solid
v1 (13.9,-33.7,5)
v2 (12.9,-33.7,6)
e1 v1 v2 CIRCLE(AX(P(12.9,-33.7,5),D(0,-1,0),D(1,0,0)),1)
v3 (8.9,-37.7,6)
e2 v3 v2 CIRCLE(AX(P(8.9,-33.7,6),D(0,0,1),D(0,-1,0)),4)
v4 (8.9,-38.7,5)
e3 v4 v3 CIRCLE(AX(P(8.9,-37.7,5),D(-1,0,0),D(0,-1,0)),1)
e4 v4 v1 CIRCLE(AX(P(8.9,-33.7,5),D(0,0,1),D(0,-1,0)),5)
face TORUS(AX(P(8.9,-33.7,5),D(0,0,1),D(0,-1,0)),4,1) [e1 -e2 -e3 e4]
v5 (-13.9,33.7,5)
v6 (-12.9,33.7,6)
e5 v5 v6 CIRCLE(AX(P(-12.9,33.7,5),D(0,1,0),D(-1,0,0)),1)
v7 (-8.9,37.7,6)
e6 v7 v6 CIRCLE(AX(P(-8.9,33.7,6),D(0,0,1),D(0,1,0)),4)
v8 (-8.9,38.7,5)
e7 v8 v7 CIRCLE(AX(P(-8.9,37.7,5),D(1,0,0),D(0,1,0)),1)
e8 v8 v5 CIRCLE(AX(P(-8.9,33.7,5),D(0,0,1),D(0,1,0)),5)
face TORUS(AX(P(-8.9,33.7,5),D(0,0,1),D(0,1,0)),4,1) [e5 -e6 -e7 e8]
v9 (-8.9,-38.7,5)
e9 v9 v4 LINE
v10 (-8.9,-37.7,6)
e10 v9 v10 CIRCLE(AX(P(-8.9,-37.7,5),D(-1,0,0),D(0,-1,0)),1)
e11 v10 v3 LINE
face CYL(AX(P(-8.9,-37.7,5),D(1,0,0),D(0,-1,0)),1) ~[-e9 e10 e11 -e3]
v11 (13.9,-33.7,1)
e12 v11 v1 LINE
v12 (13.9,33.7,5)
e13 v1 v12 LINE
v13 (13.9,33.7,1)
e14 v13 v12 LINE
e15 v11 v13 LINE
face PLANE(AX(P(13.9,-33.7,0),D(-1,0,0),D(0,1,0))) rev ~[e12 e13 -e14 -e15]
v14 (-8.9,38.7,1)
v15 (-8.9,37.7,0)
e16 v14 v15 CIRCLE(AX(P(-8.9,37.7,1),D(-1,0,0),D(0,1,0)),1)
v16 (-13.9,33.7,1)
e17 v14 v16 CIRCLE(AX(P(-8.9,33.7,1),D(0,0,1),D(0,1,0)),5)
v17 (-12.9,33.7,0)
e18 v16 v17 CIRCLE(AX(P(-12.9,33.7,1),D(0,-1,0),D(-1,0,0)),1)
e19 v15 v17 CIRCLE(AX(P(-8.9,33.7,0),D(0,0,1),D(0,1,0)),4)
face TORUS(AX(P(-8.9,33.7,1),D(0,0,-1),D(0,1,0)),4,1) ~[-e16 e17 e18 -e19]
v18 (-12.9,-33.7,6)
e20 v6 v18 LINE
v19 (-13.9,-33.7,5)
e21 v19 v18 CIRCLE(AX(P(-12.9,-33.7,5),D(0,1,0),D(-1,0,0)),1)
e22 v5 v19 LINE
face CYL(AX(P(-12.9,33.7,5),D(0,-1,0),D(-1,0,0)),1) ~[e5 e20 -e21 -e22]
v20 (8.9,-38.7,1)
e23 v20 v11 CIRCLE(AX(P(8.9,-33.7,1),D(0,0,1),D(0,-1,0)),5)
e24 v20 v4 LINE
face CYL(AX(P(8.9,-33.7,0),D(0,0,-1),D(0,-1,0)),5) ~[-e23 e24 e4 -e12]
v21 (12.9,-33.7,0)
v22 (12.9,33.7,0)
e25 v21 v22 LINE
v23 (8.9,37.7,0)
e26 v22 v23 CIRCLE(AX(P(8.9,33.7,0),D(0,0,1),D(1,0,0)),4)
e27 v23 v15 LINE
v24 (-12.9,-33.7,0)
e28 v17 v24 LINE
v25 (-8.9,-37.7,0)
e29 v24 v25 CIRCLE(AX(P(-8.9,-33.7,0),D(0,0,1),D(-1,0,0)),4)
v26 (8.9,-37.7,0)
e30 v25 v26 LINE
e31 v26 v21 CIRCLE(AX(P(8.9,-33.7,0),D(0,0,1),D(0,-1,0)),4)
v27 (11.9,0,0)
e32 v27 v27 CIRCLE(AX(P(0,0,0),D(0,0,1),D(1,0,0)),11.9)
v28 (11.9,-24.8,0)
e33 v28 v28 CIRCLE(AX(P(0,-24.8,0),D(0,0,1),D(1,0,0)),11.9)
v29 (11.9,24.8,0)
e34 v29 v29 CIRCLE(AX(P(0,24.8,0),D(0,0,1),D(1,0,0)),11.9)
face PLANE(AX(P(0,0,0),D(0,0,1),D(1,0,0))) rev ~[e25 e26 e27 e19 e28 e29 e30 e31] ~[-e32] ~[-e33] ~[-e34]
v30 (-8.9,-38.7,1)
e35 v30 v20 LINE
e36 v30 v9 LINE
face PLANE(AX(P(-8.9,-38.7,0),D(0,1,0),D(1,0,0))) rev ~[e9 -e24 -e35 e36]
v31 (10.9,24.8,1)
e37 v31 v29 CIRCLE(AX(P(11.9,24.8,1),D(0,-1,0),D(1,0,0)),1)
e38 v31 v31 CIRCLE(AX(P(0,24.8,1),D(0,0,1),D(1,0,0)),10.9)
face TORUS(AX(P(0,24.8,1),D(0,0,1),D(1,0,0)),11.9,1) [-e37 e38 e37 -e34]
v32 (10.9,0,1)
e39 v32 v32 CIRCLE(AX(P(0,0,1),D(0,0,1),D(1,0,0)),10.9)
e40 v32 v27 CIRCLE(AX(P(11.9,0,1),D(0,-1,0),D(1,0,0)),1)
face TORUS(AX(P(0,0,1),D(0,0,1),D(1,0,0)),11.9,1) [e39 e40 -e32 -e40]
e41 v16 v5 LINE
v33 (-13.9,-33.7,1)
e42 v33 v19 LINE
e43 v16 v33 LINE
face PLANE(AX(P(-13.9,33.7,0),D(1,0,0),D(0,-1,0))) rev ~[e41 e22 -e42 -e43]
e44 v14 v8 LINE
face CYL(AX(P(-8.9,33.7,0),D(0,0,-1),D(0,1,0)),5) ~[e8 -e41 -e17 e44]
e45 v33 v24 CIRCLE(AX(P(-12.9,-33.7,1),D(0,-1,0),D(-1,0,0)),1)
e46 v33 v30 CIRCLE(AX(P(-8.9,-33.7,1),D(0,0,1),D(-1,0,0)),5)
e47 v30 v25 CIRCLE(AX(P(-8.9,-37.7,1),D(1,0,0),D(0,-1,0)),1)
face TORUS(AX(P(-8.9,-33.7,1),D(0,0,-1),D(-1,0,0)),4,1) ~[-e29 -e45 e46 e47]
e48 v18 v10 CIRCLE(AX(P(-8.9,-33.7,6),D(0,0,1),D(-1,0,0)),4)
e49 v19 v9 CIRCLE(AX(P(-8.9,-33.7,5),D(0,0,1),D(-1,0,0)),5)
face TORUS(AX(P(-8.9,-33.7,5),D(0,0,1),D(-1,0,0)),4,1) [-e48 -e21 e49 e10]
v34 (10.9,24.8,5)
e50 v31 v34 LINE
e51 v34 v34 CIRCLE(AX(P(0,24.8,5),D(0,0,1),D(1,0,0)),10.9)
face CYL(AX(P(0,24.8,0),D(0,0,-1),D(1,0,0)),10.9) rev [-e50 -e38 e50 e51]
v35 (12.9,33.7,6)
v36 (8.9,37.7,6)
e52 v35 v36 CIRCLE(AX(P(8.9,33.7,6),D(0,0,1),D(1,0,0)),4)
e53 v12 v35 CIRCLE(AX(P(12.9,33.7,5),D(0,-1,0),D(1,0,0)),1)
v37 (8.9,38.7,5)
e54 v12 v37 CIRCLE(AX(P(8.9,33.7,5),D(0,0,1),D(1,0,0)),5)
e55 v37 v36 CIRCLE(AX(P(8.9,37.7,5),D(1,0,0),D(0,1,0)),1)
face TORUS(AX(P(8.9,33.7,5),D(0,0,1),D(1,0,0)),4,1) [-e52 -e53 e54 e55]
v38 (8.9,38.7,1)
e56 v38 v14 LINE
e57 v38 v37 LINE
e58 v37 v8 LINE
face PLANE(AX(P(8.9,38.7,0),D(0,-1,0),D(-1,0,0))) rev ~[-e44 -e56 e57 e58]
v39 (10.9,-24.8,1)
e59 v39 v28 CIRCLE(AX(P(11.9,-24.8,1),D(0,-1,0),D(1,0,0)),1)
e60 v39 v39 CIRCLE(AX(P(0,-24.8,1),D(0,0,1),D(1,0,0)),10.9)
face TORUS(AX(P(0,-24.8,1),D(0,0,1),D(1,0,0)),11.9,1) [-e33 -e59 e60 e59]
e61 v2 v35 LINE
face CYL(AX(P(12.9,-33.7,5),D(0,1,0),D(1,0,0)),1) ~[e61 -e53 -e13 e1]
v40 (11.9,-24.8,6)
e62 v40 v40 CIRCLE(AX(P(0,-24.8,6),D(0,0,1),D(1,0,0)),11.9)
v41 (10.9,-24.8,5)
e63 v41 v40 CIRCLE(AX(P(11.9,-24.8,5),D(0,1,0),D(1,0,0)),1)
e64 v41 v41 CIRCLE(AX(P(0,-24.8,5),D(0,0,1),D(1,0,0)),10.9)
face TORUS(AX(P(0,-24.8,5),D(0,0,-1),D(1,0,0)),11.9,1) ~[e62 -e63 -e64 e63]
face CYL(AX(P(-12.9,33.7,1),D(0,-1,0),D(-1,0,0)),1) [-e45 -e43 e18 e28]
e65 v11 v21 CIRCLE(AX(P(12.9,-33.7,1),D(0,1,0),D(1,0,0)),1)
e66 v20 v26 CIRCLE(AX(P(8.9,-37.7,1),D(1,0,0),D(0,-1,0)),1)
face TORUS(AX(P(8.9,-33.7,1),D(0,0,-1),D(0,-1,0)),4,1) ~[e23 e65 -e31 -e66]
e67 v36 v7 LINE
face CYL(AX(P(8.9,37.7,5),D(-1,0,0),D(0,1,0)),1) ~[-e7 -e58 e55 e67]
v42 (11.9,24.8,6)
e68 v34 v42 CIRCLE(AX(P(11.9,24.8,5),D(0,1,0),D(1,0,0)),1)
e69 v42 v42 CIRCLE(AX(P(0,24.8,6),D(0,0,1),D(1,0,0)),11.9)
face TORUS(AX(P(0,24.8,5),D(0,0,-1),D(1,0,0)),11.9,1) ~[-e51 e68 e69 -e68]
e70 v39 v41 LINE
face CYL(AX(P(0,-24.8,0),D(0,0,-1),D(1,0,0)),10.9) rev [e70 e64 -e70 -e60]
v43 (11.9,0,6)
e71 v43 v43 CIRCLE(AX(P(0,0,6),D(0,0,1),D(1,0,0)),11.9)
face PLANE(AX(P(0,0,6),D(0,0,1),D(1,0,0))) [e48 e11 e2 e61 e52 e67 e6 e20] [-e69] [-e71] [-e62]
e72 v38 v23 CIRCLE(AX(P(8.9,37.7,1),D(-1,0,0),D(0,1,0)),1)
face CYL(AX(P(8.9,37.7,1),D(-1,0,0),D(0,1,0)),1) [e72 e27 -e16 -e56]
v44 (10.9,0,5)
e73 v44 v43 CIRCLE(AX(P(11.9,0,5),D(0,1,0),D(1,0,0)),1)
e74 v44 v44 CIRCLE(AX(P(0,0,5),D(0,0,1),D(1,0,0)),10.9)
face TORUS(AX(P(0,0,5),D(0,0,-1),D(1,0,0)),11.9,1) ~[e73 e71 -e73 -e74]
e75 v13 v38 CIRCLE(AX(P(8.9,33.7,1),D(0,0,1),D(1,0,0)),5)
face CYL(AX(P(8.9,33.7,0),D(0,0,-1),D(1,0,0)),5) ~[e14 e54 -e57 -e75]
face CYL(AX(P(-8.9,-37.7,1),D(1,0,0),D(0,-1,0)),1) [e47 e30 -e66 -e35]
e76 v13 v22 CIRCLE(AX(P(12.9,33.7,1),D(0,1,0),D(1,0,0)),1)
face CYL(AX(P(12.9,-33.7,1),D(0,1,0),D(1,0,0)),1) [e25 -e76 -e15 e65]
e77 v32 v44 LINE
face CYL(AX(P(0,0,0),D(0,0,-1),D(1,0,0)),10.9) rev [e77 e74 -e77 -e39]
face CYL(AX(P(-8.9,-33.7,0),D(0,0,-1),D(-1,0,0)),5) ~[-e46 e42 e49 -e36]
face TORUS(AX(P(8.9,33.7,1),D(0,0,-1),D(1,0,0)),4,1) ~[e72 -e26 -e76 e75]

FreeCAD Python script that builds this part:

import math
import FreeCAD as App
import Part
import Sketcher

V = App.Vector


def edges_at(feature, points):
    """Names of the edges that pass closest to the given points."""
    edges = feature.Shape.Edges
    near = lambda p: min(range(len(edges)), key=lambda i: edges[i].distToShape(Part.Vertex(*p))[0])
    return sorted({f"Edge{near(p) + 1}" for p in points})

doc = App.newDocument("Part")
params = doc.addObject("Spreadsheet::Sheet", "Params")
for row, (alias, value) in enumerate([
    ("sketch1_radius", "5 mm"),
    ("sketch1_diameter", "21.8 mm"),
    ("sketch1_width", "17.8 mm"),
    ("sketch1_height", "67.4 mm"),
    ("pad1_length", "6 mm"),
    ("fillet_radius", "1 mm"),
], start=1):
    params.set(f"A{row}", alias)
    params.set(f"B{row}", "=" + value)
    params.setAlias(f"B{row}", alias)

body = doc.addObject("PartDesign::Body", "Body")

# Sketch on XY plane
sketch1 = doc.addObject("Sketcher::SketchObject", "Sketch")
body.addObject(sketch1)
sketch1.AttachmentSupport = (doc.XY_Plane, [""])
sketch1.MapMode = "FlatFace"
sketch1.addGeometry(Part.ArcOfCircle(Part.Circle(V(9, 34, 0), V(0, 0, 1), 5), math.radians(0), math.radians(90)), False)
sketch1.addGeometry(Part.LineSegment(V(9, 39, 0), V(-9, 39, 0)), False)
sketch1.addGeometry(Part.ArcOfCircle(Part.Circle(V(-9, 34, 0), V(0, 0, 1), 5), math.radians(90), math.radians(180)), False)
sketch1.addGeometry(Part.LineSegment(V(-14, 34, 0), V(-14, -34, 0)), False)
sketch1.addGeometry(Part.ArcOfCircle(Part.Circle(V(-9, -34, 0), V(0, 0, 1), 5), math.radians(180), math.radians(270)), False)
sketch1.addGeometry(Part.LineSegment(V(-9, -39, 0), V(9, -39, 0)), False)
sketch1.addGeometry(Part.ArcOfCircle(Part.Circle(V(9, -34, 0), V(0, 0, 1), 5), math.radians(-90), math.radians(0)), False)
sketch1.addGeometry(Part.LineSegment(V(14, -34, 0), V(14, 34, 0)), False)
sketch1.addGeometry(Part.Circle(V(0, -25, 0), V(0, 0, 1), 11), False)
sketch1.addGeometry(Part.Circle(V(0, 0, 0), V(0, 0, 1), 11), False)
sketch1.addGeometry(Part.Circle(V(0, 25, 0), V(0, 0, 1), 11), False)
sketch1.addConstraint(Sketcher.Constraint("Tangent", 0, 2, 1, 1))
sketch1.addConstraint(Sketcher.Constraint("Tangent", 1, 2, 2, 1))
sketch1.addConstraint(Sketcher.Constraint("Tangent", 2, 2, 3, 1))
sketch1.addConstraint(Sketcher.Constraint("Tangent", 3, 2, 4, 1))
sketch1.addConstraint(Sketcher.Constraint("Tangent", 4, 2, 5, 1))
sketch1.addConstraint(Sketcher.Constraint("Tangent", 5, 2, 6, 1))
sketch1.addConstraint(Sketcher.Constraint("Tangent", 6, 2, 7, 1))
sketch1.addConstraint(Sketcher.Constraint("Tangent", 7, 2, 0, 1))
sketch1.addConstraint(Sketcher.Constraint("Horizontal", 1))
sketch1.addConstraint(Sketcher.Constraint("Vertical", 3))
sketch1.addConstraint(Sketcher.Constraint("Horizontal", 5))
sketch1.addConstraint(Sketcher.Constraint("Vertical", 7))
sketch1.addConstraint(Sketcher.Constraint("Coincident", 9, 3, -1, 1))
sketch1.addConstraint(Sketcher.Constraint("Equal", 0, 2))
sketch1.addConstraint(Sketcher.Constraint("Equal", 2, 4))
sketch1.addConstraint(Sketcher.Constraint("Equal", 4, 6))
sketch1.addConstraint(Sketcher.Constraint("Equal", 8, 9))
sketch1.addConstraint(Sketcher.Constraint("Equal", 9, 10))
sketch1.addConstraint(Sketcher.Constraint("Symmetric", 0, 3, 4, 3, -1, 1))
sketch1.addConstraint(Sketcher.Constraint("Symmetric", 8, 3, 10, 3, -1, 1))
sketch1.addConstraint(Sketcher.Constraint("PointOnObject", 8, 3, -2))
sketch1.addConstraint(Sketcher.Constraint("Radius", 0, 5.0))
sketch1.addConstraint(Sketcher.Constraint("Diameter", 8, 21.8))
sketch1.addConstraint(Sketcher.Constraint("DistanceX", 1, 2, 1, 1, 17.8))
sketch1.addConstraint(Sketcher.Constraint("DistanceY", 3, 2, 3, 1, 67.4))
sketch1.addConstraint(Sketcher.Constraint("DistanceY", 8, 3, -1, 1, 24.8))
sketch1.setExpression("Constraints[21]", "Params.sketch1_radius")
sketch1.setExpression("Constraints[22]", "Params.sketch1_diameter")
sketch1.setExpression("Constraints[23]", "Params.sketch1_width")
sketch1.setExpression("Constraints[24]", "Params.sketch1_height")
pad1 = doc.addObject("PartDesign::Pad", "Pad")
body.addObject(pad1)
pad1.Profile = sketch1
pad1.setExpression("Length", "Params.pad1_length")
doc.recompute()

fillet = doc.addObject("PartDesign::Fillet", "Fillet")
body.addObject(fillet)
fillet.Base = (pad1, edges_at(pad1, [
    (12.436, 37.236, 6),
    (0, 38.7, 6),
    (-12.436, 37.236, 6),
    (-13.9, 0, 6),
    (-12.436, -37.236, 6),
    (0, -38.7, 6),
    (12.436, -37.236, 6),
    (13.9, 0, 6),
    (-10.9, -24.8, 6),
    (-10.9, 0, 6),
    (-10.9, 24.8, 6),
    (12.436, 37.236, 0),
    (0, 38.7, 0),
    (-12.436, 37.236, 0),
    (-13.9, 0, 0),
    (-12.436, -37.236, 0),
    (0, -38.7, 0),
    (12.436, -37.236, 0),
    (13.9, 0, 0),
    (-10.9, -24.8, 0),
    (-10.9, 0, 0),
    (-10.9, 24.8, 0),
]))
fillet.setExpression("Radius", "Params.fillet_radius")

doc.recompute()
